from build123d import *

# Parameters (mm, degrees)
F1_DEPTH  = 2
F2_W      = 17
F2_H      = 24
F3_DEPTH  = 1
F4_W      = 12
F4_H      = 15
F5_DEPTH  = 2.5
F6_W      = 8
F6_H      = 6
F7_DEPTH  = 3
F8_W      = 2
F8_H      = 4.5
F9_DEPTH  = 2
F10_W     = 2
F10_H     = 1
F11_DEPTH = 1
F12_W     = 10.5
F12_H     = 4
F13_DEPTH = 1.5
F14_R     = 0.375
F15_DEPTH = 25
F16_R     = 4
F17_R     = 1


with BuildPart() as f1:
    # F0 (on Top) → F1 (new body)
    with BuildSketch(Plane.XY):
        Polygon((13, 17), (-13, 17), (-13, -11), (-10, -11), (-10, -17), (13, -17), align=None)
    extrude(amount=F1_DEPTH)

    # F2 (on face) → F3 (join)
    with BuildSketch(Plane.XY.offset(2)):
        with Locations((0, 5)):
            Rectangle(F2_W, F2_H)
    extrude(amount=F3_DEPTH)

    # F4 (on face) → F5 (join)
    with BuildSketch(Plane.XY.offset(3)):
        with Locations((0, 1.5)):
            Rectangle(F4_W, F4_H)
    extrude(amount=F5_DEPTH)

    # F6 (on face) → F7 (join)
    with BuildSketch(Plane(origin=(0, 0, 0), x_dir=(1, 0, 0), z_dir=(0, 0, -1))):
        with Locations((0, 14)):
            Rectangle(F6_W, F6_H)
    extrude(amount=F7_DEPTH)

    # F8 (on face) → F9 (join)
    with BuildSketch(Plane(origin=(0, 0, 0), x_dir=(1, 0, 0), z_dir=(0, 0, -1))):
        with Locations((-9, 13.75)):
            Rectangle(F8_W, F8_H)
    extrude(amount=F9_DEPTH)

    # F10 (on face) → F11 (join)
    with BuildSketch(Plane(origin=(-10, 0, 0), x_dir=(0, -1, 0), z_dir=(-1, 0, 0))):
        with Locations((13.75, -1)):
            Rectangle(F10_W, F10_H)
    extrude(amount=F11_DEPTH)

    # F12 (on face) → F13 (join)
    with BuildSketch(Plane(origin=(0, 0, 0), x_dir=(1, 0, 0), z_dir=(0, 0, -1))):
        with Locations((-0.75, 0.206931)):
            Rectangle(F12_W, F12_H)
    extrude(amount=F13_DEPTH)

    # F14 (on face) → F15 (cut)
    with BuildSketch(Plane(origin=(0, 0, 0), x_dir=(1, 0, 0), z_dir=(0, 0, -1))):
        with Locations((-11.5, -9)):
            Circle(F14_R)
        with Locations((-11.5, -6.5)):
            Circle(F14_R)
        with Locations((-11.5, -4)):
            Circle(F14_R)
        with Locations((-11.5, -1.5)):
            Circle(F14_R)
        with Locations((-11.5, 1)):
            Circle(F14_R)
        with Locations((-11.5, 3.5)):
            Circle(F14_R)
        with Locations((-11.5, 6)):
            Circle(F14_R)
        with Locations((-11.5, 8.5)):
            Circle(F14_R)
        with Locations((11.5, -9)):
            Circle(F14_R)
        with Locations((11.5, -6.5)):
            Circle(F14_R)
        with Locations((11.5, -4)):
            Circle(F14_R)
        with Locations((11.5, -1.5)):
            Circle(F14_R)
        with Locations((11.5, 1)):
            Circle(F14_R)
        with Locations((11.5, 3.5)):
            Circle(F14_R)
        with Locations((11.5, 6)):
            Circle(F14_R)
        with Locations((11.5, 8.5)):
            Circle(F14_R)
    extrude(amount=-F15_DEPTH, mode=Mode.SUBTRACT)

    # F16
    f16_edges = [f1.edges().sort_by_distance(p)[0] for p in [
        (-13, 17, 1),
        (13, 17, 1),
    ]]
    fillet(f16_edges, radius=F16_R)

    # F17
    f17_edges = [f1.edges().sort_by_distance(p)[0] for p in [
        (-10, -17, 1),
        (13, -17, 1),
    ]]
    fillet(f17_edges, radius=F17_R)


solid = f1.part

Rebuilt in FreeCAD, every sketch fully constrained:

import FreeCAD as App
import Part
import Sketcher
from FreeCAD import Vector
Q = App.Units.Quantity


def edges_at(feature, points):
    """Names of the edges that pass closest to the given points."""
    edges = feature.Shape.Edges
    near = lambda p: min(range(len(edges)), key=lambda i: edges[i].distToShape(Part.Vertex(*p))[0])
    return sorted({f"Edge{near(p) + 1}" for p in points})


def add_polygon(sketch, points):
    """Adds a closed chain of lines whose ends are joined by coincident constraints."""
    first, n = sketch.GeometryCount, len(points)
    for a, b in zip(points, points[1:] + points[:1]):
        sketch.addGeometry(Part.LineSegment(App.Vector(*a, 0), App.Vector(*b, 0)), False)
    for i in range(n):
        sketch.addConstraint(Sketcher.Constraint("Coincident", first + i, 2, first + (i + 1) % n, 1))

doc = App.newDocument("Part")
body = doc.addObject("PartDesign::Body", "Body")

sketch1 = body.newObject("Sketcher::SketchObject", "Sketch")
sketch1.AttachmentSupport = (doc.getObject("XY_Plane"), [""])
sketch1.MapMode = "FlatFace"
add_polygon(sketch1, [(13, 17), (-13, 17), (-13, -11), (-10, -11), (-10, -17), (13, -17)])
sketch1.addConstraint([
    Sketcher.Constraint("Horizontal", 0),
    Sketcher.Constraint("Vertical", 1),
    Sketcher.Constraint("Horizontal", 2),
    Sketcher.Constraint("Vertical", 3),
    Sketcher.Constraint("Horizontal", 4),
    Sketcher.Constraint("Vertical", 5),
    Sketcher.Constraint("Symmetric", 0, 2, 4, 2, -1, 1),
    Sketcher.Constraint("DistanceX", 0, 2, 0, 1, Q("26 mm")),
    Sketcher.Constraint("DistanceX", 2, 1, 2, 2, Q("3 mm")),
    Sketcher.Constraint("DistanceY", 1, 2, 1, 1, Q("28 mm")),
    Sketcher.Constraint("DistanceY", 3, 2, 3, 1, Q("6 mm")),
])
pad1 = body.newObject("PartDesign::Pad", "Pad")
pad1.Profile = sketch1
pad1.Length = 2

sketch2 = body.newObject("Sketcher::SketchObject", "Sketch001")
sketch2.AttachmentSupport = (doc.getObject("XY_Plane"), [""])
sketch2.MapMode = "FlatFace"
sketch2.AttachmentOffset = App.Placement(Vector(0, 0, 2), App.Rotation())
add_polygon(sketch2, [(-8.5, 17), (-8.5, -7), (8.5, -7), (8.5, 17)])
sketch2.addConstraint([
    Sketcher.Constraint("Vertical", 0),
    Sketcher.Constraint("Horizontal", 1),
    Sketcher.Constraint("Vertical", 2),
    Sketcher.Constraint("Horizontal", 3),
    Sketcher.Constraint("DistanceX", 1, 1, 1, 2, Q("17 mm")),
    Sketcher.Constraint("DistanceY", 0, 2, 0, 1, Q("24 mm")),
    Sketcher.Constraint("DistanceY", 0, 2, -1, 1, Q("7 mm")),
    Sketcher.Constraint("DistanceX", 0, 2, -1, 1, Q("8.5 mm")),
])
pad2 = body.newObject("PartDesign::Pad", "Pad001")
pad2.Profile = sketch2
pad2.Length = 1

sketch3 = body.newObject("Sketcher::SketchObject", "Sketch002")
sketch3.AttachmentSupport = (doc.getObject("XY_Plane"), [""])
sketch3.MapMode = "FlatFace"
sketch3.AttachmentOffset = App.Placement(Vector(0, 0, 3), App.Rotation())
add_polygon(sketch3, [(-6, 9), (-6, -6), (6, -6), (6, 9)])
sketch3.addConstraint([
    Sketcher.Constraint("Vertical", 0),
    Sketcher.Constraint("Horizontal", 1),
    Sketcher.Constraint("Vertical", 2),
    Sketcher.Constraint("Horizontal", 3),
    Sketcher.Constraint("DistanceX", 1, 1, 1, 2, Q("12 mm")),
    Sketcher.Constraint("DistanceY", 0, 2, 0, 1, Q("15 mm")),
    Sketcher.Constraint("DistanceX", 0, 2, -1, 1, Q("6 mm")),
    Sketcher.Constraint("DistanceY", 0, 2, -1, 1, Q("6 mm")),
])
pad3 = body.newObject("PartDesign::Pad", "Pad002")
pad3.Profile = sketch3
pad3.Length = 2.5

sketch4 = body.newObject("Sketcher::SketchObject", "Sketch003")
sketch4.AttachmentSupport = (doc.getObject("XY_Plane"), [""])
sketch4.MapMode = "FlatFace"
add_polygon(sketch4, [(-4, -17), (-4, -11), (4, -11), (4, -17)])
sketch4.addConstraint([
    Sketcher.Constraint("Vertical", 0),
    Sketcher.Constraint("Horizontal", 1),
    Sketcher.Constraint("Vertical", 2),
    Sketcher.Constraint("Horizontal", 3),
    Sketcher.Constraint("DistanceX", 1, 1, 1, 2, Q("8 mm")),
    Sketcher.Constraint("DistanceY", 0, 1, 0, 2, Q("6 mm")),
    Sketcher.Constraint("DistanceX", 0, 2, -1, 1, Q("4 mm")),
    Sketcher.Constraint("DistanceY", 0, 2, -1, 1, Q("11 mm")),
])
pad4 = body.newObject("PartDesign::Pad", "Pad003")
pad4.Profile = sketch4
pad4.Length = 3
pad4.Reversed = True

sketch5 = body.newObject("Sketcher::SketchObject", "Sketch004")
sketch5.AttachmentSupport = (doc.getObject("XY_Plane"), [""])
sketch5.MapMode = "FlatFace"
add_polygon(sketch5, [(-10, -16), (-10, -11.5), (-8, -11.5), (-8, -16)])
sketch5.addConstraint([
    Sketcher.Constraint("Vertical", 0),
    Sketcher.Constraint("Horizontal", 1),
    Sketcher.Constraint("Vertical", 2),
    Sketcher.Constraint("Horizontal", 3),
    Sketcher.Constraint("DistanceX", 1, 1, 1, 2, Q("2 mm")),
    Sketcher.Constraint("DistanceY", 0, 1, 0, 2, Q("4.5 mm")),
    Sketcher.Constraint("DistanceX", 0, 2, -1, 1, Q("10 mm")),
    Sketcher.Constraint("DistanceY", 2, 2, -1, 1, Q("16 mm")),
])
pad5 = body.newObject("PartDesign::Pad", "Pad004")
pad5.Profile = sketch5
pad5.Length = 2
pad5.Reversed = True

sketch6 = body.newObject("Sketcher::SketchObject", "Sketch005")
sketch6.AttachmentSupport = (doc.getObject("YZ_Plane"), [""])
sketch6.MapMode = "FlatFace"
sketch6.AttachmentOffset = App.Placement(Vector(0, 0, -10), App.Rotation())
add_polygon(sketch6, [(-12.75, -0.5), (-12.75, -1.5), (-14.75, -1.5), (-14.75, -0.5)])
sketch6.addConstraint([
    Sketcher.Constraint("Vertical", 0),
    Sketcher.Constraint("Horizontal", 1),
    Sketcher.Constraint("Vertical", 2),
    Sketcher.Constraint("Horizontal", 3),
    Sketcher.Constraint("DistanceX", 1, 2, 1, 1, Q("2 mm")),
    Sketcher.Constraint("DistanceY", 0, 2, 0, 1, Q("1 mm")),
    Sketcher.Constraint("DistanceY", 0, 2, -1, 1, Q("1.5 mm")),
    Sketcher.Constraint("DistanceX", 0, 2, -1, 1, Q("12.75 mm")),
])
pad6 = body.newObject("PartDesign::Pad", "Pad005")
pad6.Profile = sketch6
pad6.Length = 1
pad6.Reversed = True

sketch7 = body.newObject("Sketcher::SketchObject", "Sketch006")
sketch7.AttachmentSupport = (doc.getObject("XY_Plane"), [""])
sketch7.MapMode = "FlatFace"
add_polygon(sketch7, [(-6, -2.206931), (-6, 1.793069), (4.5, 1.793069), (4.5, -2.206931)])
sketch7.addConstraint([
    Sketcher.Constraint("Vertical", 0),
    Sketcher.Constraint("Horizontal", 1),
    Sketcher.Constraint("Vertical", 2),
    Sketcher.Constraint("Horizontal", 3),
    Sketcher.Constraint("DistanceY", 0, 1, 0, 2, Q("4 mm")),
    Sketcher.Constraint("DistanceX", 1, 1, 1, 2, Q("10.5 mm")),
    Sketcher.Constraint("DistanceX", 0, 2, -1, 1, Q("6 mm")),
    Sketcher.Constraint("DistanceY", -1, 1, 0, 2, Q("1.793069 mm")),
])
pad7 = body.newObject("PartDesign::Pad", "Pad006")
pad7.Profile = sketch7
pad7.Length = 1.5
pad7.Reversed = True

sketch8 = body.newObject("Sketcher::SketchObject", "Sketch007")
sketch8.AttachmentSupport = (doc.getObject("XY_Plane"), [""])
sketch8.MapMode = "FlatFace"
sketch8.addGeometry([
    Part.Circle(Vector(-11.5, 9, 0), Vector(0, 0, 1), 0.375),
    Part.Circle(Vector(-11.5, 6.5, 0), Vector(0, 0, 1), 0.375),
    Part.Circle(Vector(-11.5, 4, 0), Vector(0, 0, 1), 0.375),
    Part.Circle(Vector(-11.5, 1.5, 0), Vector(0, 0, 1), 0.375),
    Part.Circle(Vector(-11.5, -1, 0), Vector(0, 0, 1), 0.375),
    Part.Circle(Vector(-11.5, -3.5, 0), Vector(0, 0, 1), 0.375),
    Part.Circle(Vector(-11.5, -6, 0), Vector(0, 0, 1), 0.375),
    Part.Circle(Vector(-11.5, -8.5, 0), Vector(0, 0, 1), 0.375),
    Part.Circle(Vector(11.5, 9, 0), Vector(0, 0, 1), 0.375),
    Part.Circle(Vector(11.5, 6.5, 0), Vector(0, 0, 1), 0.375),
    Part.Circle(Vector(11.5, 4, 0), Vector(0, 0, 1), 0.375),
    Part.Circle(Vector(11.5, 1.5, 0), Vector(0, 0, 1), 0.375),
    Part.Circle(Vector(11.5, -1, 0), Vector(0, 0, 1), 0.375),
    Part.Circle(Vector(11.5, -3.5, 0), Vector(0, 0, 1), 0.375),
    Part.Circle(Vector(11.5, -6, 0), Vector(0, 0, 1), 0.375),
    Part.Circle(Vector(11.5, -8.5, 0), Vector(0, 0, 1), 0.375),
], False)
sketch8.addConstraint([
    Sketcher.Constraint("Equal", 0, 1),
    Sketcher.Constraint("Equal", 1, 2),
    Sketcher.Constraint("Equal", 2, 3),
    Sketcher.Constraint("Equal", 3, 4),
    Sketcher.Constraint("Equal", 4, 5),
    Sketcher.Constraint("Equal", 5, 6),
    Sketcher.Constraint("Equal", 6, 7),
    Sketcher.Constraint("Equal", 7, 8),
    Sketcher.Constraint("Equal", 8, 9),
    Sketcher.Constraint("Equal", 9, 10),
    Sketcher.Constraint("Equal", 10, 11),
    Sketcher.Constraint("Equal", 11, 12),
    Sketcher.Constraint("Equal", 12, 13),
    Sketcher.Constraint("Equal", 13, 14),
    Sketcher.Constraint("Equal", 14, 15),
    Sketcher.Constraint("Symmetric", 0, 3, 8, 3, -2),
    Sketcher.Constraint("Symmetric", 1, 3, 9, 3, -2),
    Sketcher.Constraint("Symmetric", 2, 3, 10, 3, -2),
    Sketcher.Constraint("Symmetric", 3, 3, 11, 3, -2),
    Sketcher.Constraint("Symmetric", 4, 3, 12, 3, -2),
    Sketcher.Constraint("Symmetric", 5, 3, 13, 3, -2),
    Sketcher.Constraint("Symmetric", 6, 3, 14, 3, -2),
    Sketcher.Constraint("Symmetric", 7, 3, 15, 3, -2),
    Sketcher.Constraint("Vertical", 0, 3, 1, 3),
    Sketcher.Constraint("Vertical", 1, 3, 2, 3),
    Sketcher.Constraint("Vertical", 2, 3, 3, 3),
    Sketcher.Constraint("Vertical", 3, 3, 4, 3),
    Sketcher.Constraint("Vertical", 4, 3, 5, 3),
    Sketcher.Constraint("Vertical", 5, 3, 6, 3),
    Sketcher.Constraint("Vertical", 6, 3, 7, 3),
    Sketcher.Constraint("Diameter", 0, Q("0.75 mm")),
    Sketcher.Constraint("DistanceY", -1, 1, 0, 3, Q("9 mm")),
    Sketcher.Constraint("DistanceY", -1, 1, 2, 3, Q("4 mm")),
    Sketcher.Constraint("DistanceY", 4, 3, -1, 1, Q("1 mm")),
    Sketcher.Constraint("DistanceY", 6, 3, -1, 1, Q("6 mm")),
    Sketcher.Constraint("DistanceY", 3, 3, 1, 3, Q("5 mm")),
    Sketcher.Constraint("DistanceY", 5, 3, 3, 3, Q("5 mm")),
    Sketcher.Constraint("DistanceY", 7, 3, 5, 3, Q("5 mm")),
    Sketcher.Constraint("DistanceX", 0, 3, 8, 3, Q("23 mm")),
    Sketcher.Constraint("DistanceY", -1, 1, 1, 3, Q("6.5 mm")),
])
pocket1 = body.newObject("PartDesign::Pocket", "Pocket")
pocket1.Profile = sketch8
pocket1.Length = 25
pocket1.Reversed = True
doc.recompute()

fillet = body.newObject("PartDesign::Fillet", "Fillet")
fillet.Base = (pocket1, edges_at(pocket1, [(-13, 17, 1), (13, 17, 1)]))
fillet.Radius = 4
doc.recompute()

fillet2 = body.newObject("PartDesign::Fillet", "Fillet001")
fillet2.Base = (fillet, edges_at(fillet, [(-10, -17, 1), (13, -17, 1)]))
fillet2.Radius = 1

doc.recompute()
